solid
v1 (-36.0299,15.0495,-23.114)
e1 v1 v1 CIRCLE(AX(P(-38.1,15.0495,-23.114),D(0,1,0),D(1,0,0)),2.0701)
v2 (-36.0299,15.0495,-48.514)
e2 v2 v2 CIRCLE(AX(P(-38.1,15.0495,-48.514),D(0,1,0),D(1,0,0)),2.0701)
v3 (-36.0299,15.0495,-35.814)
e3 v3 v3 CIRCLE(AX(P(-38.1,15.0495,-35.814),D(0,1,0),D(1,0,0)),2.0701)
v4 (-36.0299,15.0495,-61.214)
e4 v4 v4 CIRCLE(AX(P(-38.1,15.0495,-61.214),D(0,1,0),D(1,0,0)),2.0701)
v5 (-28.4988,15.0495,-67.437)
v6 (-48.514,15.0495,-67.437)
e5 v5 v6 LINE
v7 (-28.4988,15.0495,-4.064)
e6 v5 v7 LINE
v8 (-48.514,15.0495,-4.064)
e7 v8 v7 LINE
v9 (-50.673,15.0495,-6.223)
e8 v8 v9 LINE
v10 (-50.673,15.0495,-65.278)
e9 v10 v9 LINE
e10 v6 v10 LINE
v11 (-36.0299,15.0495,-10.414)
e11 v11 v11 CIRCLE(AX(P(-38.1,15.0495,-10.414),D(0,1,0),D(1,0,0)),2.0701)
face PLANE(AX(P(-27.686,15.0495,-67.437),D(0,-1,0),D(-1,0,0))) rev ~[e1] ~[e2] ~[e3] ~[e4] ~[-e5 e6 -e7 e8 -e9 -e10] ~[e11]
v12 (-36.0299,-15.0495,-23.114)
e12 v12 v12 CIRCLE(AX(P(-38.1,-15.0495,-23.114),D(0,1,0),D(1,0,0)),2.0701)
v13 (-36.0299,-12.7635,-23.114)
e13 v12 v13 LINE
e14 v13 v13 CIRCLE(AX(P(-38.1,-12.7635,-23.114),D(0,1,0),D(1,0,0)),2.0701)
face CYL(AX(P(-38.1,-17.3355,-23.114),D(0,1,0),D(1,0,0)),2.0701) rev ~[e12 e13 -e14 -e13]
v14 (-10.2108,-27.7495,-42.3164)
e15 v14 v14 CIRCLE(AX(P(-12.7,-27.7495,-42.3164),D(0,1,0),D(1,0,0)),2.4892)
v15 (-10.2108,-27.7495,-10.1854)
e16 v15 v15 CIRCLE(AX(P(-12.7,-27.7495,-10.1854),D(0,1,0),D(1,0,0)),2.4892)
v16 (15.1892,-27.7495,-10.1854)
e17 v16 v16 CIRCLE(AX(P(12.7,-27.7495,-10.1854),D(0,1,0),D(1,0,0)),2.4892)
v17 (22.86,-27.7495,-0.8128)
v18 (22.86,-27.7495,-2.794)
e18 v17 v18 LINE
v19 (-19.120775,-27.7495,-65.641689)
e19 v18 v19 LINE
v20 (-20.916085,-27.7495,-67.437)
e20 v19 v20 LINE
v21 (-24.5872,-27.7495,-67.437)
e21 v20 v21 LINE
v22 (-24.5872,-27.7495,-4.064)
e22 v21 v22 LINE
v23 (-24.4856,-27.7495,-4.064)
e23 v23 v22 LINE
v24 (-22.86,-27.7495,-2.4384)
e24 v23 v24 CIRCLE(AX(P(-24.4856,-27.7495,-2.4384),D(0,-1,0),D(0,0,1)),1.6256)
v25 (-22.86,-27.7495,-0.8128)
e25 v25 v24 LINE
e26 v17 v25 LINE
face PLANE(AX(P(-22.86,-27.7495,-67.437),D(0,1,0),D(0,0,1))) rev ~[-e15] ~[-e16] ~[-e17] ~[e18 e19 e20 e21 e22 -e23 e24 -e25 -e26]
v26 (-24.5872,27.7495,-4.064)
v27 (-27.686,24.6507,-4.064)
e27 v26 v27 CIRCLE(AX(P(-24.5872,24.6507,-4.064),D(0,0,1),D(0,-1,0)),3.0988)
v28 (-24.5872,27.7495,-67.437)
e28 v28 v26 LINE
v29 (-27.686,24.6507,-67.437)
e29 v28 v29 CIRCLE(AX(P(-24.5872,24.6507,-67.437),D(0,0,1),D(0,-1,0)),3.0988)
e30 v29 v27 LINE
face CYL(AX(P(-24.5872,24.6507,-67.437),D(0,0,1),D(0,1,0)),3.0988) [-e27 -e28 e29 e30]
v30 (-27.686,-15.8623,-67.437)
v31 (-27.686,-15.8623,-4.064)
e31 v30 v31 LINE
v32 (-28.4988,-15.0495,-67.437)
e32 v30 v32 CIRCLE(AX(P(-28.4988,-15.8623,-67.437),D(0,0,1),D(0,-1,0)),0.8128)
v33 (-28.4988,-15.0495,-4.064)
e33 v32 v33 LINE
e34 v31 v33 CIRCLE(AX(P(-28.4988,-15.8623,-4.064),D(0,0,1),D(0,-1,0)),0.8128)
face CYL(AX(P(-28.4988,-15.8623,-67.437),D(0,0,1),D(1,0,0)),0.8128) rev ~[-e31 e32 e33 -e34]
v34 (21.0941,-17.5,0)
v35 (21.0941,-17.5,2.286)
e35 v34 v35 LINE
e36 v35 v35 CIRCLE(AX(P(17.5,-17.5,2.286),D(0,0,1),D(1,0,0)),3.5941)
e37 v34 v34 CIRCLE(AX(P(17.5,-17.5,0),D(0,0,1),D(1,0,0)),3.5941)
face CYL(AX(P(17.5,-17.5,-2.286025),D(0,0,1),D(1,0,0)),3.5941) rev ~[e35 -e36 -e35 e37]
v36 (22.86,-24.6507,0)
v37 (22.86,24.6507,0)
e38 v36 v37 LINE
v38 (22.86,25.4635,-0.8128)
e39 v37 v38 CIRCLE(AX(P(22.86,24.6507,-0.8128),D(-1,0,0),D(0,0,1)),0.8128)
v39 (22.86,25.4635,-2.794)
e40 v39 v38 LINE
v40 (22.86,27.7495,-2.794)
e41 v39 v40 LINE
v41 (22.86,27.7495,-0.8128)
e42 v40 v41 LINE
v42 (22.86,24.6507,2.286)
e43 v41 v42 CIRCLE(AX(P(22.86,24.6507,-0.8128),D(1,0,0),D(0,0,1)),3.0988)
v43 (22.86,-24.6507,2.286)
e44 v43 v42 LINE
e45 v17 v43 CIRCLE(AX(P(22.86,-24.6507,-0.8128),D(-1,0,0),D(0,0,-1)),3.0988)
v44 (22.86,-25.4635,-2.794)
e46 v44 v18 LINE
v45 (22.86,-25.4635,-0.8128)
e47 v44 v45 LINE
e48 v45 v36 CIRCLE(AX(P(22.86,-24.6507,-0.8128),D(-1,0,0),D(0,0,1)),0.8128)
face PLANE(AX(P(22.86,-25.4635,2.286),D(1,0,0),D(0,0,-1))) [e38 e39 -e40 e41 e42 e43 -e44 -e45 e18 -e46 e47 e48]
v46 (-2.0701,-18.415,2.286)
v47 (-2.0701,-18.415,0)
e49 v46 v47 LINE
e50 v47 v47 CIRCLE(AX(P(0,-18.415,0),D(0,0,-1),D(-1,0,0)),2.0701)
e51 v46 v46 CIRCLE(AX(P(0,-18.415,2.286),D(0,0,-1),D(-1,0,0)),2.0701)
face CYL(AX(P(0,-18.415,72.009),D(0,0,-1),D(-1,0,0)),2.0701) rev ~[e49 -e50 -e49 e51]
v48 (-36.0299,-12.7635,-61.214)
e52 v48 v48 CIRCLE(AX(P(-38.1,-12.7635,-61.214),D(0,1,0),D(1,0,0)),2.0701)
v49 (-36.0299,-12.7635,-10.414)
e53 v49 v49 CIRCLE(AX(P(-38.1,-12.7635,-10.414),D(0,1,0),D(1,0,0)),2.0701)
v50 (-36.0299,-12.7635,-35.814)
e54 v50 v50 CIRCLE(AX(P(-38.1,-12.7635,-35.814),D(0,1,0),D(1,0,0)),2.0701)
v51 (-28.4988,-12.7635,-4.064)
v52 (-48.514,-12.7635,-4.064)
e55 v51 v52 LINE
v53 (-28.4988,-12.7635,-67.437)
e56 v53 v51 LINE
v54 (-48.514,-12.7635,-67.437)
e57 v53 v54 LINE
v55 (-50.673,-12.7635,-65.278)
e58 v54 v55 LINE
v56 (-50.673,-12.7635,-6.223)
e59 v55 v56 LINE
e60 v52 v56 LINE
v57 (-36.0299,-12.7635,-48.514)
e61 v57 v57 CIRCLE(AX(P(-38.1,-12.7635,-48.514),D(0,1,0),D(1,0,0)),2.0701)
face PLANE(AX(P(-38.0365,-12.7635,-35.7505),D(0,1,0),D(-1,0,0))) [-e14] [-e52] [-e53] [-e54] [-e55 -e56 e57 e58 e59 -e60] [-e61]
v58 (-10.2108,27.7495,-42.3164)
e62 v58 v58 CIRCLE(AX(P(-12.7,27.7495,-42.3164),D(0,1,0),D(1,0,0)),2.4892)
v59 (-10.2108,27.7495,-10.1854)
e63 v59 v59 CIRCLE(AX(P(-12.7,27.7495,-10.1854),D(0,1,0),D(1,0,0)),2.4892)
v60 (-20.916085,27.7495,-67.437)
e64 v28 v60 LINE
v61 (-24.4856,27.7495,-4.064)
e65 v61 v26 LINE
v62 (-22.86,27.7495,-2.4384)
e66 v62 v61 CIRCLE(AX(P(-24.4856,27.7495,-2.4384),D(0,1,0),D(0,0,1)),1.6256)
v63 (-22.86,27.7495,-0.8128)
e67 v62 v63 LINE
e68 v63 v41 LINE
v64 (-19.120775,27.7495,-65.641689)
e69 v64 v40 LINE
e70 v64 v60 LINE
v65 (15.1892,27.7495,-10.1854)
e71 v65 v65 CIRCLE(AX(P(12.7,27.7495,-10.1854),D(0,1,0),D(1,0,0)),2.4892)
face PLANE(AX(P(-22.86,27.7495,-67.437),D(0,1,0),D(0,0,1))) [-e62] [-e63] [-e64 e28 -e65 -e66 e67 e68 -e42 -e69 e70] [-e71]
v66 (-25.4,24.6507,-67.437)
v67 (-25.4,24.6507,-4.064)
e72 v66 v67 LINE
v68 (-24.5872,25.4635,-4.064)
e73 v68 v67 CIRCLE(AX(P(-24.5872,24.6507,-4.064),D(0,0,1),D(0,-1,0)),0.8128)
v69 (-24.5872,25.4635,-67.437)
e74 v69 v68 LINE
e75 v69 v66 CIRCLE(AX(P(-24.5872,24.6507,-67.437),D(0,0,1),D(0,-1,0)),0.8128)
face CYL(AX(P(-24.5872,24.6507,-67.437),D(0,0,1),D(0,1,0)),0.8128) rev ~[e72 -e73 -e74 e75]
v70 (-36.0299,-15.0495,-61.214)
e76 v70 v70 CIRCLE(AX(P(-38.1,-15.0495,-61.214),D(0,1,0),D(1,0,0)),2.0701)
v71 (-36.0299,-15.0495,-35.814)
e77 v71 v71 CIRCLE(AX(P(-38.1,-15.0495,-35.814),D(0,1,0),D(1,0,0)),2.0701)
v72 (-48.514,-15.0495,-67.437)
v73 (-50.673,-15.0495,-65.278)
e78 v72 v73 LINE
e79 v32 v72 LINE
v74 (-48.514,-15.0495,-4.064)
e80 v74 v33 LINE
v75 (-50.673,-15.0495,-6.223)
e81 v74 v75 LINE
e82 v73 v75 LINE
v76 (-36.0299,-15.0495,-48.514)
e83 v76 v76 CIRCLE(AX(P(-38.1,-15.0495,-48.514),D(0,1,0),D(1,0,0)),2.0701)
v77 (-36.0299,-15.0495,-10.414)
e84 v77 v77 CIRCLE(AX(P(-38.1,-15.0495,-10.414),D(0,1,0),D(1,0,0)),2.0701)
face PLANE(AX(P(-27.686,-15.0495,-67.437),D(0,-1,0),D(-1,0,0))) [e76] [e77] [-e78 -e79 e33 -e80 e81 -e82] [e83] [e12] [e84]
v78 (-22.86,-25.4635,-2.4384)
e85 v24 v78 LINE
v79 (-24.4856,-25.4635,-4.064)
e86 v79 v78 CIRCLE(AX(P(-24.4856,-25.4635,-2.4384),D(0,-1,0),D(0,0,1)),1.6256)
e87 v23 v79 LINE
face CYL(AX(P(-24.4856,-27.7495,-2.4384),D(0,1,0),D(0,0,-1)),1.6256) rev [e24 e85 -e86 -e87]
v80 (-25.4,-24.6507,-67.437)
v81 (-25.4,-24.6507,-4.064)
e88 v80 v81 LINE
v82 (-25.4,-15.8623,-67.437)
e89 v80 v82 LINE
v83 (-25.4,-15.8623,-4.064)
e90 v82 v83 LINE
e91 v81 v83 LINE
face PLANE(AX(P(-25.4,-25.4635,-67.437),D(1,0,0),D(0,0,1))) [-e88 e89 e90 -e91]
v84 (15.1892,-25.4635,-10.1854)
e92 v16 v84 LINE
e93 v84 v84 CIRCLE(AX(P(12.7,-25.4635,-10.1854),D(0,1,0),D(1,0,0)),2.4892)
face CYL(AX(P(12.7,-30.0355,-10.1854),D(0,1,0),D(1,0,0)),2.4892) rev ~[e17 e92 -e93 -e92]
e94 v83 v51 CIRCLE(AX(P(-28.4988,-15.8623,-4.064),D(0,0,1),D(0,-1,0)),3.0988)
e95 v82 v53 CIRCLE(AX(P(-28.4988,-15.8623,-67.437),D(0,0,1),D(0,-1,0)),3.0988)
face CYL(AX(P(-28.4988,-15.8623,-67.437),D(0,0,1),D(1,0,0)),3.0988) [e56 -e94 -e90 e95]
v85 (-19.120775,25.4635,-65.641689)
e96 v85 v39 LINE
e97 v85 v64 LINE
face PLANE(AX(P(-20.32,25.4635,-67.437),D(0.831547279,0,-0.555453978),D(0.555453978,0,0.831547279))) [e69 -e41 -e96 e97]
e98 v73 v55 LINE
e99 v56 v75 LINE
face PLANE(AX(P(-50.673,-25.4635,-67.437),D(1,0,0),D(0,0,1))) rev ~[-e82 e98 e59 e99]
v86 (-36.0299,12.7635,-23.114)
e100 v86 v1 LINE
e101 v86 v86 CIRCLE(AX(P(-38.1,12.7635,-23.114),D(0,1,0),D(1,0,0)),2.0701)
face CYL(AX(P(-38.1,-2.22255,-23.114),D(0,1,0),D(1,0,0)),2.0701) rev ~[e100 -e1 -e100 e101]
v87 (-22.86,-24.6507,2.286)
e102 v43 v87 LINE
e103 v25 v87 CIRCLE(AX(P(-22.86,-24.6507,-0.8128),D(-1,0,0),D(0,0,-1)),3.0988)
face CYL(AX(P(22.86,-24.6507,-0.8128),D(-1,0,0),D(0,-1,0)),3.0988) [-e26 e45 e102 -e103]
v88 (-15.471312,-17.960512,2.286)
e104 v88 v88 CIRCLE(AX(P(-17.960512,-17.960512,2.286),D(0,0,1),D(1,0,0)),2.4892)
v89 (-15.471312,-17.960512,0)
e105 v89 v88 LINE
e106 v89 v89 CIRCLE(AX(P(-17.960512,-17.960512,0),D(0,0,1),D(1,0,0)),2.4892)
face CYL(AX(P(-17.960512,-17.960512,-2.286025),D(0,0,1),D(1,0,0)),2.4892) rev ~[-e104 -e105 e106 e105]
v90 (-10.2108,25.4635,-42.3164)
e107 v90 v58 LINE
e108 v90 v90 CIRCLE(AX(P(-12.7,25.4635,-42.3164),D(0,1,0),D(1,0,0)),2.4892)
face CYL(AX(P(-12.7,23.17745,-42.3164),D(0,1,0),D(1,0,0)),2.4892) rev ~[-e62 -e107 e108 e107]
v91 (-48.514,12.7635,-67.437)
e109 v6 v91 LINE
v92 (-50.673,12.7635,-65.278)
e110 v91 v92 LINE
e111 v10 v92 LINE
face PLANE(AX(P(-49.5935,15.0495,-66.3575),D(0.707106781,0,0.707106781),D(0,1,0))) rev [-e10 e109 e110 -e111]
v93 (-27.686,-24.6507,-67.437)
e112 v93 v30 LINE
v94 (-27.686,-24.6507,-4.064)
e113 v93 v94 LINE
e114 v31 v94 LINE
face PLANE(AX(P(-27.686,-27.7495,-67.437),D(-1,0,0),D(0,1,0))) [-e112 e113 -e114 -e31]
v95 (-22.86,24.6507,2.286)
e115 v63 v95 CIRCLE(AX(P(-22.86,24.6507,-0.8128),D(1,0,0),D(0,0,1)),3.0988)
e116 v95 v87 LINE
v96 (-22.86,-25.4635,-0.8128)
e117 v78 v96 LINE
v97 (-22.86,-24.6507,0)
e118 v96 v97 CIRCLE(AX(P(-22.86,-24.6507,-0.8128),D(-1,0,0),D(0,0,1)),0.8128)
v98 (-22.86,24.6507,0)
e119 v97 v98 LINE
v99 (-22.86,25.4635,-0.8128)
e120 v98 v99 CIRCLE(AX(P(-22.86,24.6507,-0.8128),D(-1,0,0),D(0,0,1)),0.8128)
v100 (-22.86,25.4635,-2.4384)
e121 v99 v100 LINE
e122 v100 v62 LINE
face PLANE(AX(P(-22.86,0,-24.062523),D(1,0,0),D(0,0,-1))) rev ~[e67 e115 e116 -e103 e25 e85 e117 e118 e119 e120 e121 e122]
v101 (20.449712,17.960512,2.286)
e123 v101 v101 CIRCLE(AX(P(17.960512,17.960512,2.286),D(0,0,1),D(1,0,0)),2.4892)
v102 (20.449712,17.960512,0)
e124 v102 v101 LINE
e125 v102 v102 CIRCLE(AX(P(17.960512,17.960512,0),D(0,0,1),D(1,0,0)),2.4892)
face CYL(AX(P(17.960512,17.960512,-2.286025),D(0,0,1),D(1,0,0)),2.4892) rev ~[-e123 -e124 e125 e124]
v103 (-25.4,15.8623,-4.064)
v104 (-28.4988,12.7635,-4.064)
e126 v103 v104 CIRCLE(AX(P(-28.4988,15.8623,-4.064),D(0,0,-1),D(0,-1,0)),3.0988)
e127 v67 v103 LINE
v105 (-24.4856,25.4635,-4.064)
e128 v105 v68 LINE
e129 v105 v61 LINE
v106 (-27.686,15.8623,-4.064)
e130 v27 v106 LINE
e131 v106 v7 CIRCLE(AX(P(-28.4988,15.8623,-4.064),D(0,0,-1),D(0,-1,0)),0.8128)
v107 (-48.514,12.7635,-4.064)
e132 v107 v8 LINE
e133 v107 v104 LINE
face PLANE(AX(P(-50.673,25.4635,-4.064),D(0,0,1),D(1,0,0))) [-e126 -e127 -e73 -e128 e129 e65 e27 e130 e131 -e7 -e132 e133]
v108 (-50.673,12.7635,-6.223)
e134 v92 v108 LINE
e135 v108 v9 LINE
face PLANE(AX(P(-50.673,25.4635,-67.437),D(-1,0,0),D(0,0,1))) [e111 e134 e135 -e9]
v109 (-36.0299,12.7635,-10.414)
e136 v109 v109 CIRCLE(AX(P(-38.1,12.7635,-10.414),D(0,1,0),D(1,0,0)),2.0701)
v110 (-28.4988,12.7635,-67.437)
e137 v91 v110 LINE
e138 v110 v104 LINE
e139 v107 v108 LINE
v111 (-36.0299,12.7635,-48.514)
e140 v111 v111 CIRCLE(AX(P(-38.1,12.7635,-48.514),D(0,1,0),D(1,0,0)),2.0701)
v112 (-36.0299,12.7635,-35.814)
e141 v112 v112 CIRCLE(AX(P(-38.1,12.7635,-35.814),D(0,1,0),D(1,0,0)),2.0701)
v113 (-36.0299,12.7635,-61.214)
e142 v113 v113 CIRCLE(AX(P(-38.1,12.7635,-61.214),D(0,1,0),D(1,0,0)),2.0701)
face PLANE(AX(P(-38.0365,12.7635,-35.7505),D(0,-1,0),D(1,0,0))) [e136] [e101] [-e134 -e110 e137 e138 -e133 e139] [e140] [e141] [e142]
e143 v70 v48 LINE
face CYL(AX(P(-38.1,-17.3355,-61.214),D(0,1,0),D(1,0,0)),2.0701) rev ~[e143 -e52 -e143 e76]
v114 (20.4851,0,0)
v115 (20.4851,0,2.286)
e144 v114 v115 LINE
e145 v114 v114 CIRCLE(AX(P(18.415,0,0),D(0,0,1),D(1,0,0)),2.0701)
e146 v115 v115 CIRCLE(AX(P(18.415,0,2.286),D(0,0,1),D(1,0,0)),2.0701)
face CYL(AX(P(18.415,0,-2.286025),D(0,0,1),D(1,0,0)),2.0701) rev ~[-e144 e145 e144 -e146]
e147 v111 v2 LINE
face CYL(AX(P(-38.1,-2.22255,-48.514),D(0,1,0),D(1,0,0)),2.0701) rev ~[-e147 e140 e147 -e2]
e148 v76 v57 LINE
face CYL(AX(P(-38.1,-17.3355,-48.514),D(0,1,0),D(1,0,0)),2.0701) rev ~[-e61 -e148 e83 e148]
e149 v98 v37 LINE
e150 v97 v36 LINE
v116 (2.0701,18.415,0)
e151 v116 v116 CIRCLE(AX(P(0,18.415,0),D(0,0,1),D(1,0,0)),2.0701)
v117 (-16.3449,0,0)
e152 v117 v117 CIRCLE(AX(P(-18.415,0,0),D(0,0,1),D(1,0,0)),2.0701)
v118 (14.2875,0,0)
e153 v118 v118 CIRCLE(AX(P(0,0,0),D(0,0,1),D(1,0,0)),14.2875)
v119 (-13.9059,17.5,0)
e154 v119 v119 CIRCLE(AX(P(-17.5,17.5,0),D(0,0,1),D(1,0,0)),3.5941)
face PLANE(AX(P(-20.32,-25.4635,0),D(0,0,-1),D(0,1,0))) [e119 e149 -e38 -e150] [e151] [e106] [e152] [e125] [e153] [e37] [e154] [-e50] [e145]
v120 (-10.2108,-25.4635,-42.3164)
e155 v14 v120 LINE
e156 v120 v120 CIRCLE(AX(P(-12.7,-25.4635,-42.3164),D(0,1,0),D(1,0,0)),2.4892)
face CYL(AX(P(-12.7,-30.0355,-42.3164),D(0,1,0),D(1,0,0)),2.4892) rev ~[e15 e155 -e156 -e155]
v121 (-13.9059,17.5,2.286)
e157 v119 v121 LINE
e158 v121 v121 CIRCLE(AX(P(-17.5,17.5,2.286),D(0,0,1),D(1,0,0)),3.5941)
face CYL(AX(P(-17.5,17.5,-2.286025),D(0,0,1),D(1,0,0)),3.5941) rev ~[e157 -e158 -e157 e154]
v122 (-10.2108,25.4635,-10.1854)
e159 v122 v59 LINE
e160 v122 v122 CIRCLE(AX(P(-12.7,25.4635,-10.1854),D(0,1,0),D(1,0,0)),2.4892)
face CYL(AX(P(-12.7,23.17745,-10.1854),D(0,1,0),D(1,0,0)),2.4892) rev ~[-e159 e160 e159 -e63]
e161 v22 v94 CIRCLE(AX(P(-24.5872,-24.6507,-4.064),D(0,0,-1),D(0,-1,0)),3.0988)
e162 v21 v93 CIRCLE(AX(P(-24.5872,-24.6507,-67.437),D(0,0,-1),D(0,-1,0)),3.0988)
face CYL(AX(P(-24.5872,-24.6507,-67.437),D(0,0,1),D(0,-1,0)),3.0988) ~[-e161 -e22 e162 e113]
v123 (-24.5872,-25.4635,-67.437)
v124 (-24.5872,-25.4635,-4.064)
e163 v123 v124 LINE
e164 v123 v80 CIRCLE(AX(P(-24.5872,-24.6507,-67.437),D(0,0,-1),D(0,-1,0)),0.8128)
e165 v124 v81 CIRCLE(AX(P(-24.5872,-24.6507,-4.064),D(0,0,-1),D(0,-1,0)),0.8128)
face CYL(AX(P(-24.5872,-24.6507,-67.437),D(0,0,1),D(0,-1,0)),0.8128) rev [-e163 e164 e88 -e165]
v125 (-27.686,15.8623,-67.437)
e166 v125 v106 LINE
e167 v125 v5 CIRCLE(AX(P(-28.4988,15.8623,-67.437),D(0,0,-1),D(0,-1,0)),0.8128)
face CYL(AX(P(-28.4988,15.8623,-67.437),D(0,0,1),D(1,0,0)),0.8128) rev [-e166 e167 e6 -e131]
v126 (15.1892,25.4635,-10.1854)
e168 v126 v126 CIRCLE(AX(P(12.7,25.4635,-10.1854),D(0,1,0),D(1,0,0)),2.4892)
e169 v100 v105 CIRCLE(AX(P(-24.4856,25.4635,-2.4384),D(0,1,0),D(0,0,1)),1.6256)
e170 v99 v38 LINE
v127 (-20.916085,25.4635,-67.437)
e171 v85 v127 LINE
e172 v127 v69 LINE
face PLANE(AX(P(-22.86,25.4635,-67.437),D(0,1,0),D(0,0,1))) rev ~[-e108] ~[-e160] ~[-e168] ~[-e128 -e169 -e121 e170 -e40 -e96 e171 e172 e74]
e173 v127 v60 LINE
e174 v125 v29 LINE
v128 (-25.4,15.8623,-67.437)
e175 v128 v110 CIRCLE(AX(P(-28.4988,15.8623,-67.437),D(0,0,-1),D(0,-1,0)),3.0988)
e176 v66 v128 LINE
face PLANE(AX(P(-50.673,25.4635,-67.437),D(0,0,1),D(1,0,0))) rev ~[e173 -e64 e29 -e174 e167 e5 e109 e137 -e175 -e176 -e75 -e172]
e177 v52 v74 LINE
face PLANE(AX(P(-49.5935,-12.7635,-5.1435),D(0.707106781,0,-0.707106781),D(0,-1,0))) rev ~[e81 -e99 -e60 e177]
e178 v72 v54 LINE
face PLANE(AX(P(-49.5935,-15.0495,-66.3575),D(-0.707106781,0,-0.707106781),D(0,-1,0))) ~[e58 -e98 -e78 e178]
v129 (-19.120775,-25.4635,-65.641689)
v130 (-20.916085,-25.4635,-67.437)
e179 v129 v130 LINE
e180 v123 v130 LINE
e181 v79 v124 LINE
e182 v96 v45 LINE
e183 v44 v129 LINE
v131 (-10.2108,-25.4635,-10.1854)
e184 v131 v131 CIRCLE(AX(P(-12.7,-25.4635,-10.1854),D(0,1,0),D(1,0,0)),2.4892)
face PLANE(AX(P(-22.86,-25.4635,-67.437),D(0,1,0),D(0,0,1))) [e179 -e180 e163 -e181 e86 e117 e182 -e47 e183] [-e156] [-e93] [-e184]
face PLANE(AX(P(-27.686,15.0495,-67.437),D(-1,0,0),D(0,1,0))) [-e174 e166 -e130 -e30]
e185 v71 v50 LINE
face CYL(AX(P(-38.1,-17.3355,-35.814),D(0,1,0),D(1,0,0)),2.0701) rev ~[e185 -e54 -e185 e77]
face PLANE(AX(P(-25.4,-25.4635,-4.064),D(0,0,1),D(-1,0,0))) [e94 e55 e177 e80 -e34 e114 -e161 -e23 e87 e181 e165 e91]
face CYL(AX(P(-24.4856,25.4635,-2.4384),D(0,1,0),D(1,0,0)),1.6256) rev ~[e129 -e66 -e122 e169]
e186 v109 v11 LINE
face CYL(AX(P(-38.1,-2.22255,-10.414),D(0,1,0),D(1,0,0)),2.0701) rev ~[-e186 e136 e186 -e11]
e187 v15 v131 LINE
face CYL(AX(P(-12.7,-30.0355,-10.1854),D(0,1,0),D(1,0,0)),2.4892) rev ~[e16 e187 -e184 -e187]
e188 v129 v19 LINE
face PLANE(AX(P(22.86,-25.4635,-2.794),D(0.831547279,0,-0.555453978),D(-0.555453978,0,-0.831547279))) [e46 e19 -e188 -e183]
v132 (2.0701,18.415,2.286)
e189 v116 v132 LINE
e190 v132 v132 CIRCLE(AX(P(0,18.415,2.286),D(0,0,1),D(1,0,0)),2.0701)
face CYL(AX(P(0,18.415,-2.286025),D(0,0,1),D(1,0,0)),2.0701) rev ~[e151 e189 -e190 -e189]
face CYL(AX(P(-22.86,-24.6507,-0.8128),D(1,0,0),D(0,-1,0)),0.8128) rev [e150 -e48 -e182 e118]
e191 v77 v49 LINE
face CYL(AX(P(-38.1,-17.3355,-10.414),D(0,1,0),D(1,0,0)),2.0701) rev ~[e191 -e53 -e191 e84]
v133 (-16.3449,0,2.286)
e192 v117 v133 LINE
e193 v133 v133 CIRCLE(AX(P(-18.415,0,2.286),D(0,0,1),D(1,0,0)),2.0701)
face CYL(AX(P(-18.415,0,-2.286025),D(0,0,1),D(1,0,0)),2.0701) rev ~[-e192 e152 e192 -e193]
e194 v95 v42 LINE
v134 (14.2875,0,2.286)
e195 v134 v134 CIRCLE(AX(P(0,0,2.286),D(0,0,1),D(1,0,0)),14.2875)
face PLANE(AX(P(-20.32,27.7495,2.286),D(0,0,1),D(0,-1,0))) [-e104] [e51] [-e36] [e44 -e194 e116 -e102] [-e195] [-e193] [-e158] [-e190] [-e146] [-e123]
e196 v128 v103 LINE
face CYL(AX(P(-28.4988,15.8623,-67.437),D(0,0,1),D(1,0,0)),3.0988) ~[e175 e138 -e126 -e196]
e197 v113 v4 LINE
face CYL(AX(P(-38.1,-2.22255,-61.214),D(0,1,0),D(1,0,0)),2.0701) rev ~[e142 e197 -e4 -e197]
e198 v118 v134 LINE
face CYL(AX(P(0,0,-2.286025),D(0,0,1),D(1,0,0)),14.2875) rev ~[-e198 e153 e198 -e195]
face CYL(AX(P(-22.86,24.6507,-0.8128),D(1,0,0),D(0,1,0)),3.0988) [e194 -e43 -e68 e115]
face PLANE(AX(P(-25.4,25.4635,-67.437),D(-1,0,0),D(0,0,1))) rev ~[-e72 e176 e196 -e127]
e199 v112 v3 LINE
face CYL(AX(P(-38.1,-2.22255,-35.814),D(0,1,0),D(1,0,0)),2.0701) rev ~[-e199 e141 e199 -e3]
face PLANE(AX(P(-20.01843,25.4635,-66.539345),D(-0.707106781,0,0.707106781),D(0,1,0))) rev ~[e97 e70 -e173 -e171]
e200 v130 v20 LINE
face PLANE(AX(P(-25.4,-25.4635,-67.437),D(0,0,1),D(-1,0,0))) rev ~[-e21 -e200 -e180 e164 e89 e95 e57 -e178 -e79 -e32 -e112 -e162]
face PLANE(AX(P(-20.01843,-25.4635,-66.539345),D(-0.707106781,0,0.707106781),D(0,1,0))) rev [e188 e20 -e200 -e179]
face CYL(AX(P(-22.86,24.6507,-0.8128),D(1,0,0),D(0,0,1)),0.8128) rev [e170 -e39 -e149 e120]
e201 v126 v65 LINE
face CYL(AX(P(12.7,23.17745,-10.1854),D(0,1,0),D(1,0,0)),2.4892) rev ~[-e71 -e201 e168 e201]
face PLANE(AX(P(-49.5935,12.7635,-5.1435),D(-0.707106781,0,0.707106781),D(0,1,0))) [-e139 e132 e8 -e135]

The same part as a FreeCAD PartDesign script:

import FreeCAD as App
import Part
import Sketcher

V = App.Vector
Q = App.Units.Quantity


def edges_at(feature, points):
    """Names of the edges that pass closest to the given points."""
    edges = feature.Shape.Edges
    near = lambda p: min(range(len(edges)), key=lambda i: edges[i].distToShape(Part.Vertex(*p))[0])
    return sorted({f"Edge{near(p) + 1}" for p in points})


def add_polygon(sketch, points):
    """Adds a closed chain of lines whose ends are joined by coincident constraints."""
    first, n = sketch.GeometryCount, len(points)
    for a, b in zip(points, points[1:] + points[:1]):
        sketch.addGeometry(Part.LineSegment(App.Vector(*a, 0), App.Vector(*b, 0)), False)
    for i in range(n):
        sketch.addConstraint(Sketcher.Constraint("Coincident", first + i, 2, first + (i + 1) % n, 1))

doc = App.newDocument("Part")
body = doc.addObject("PartDesign::Body", "Body")

# Sketch on XY plane
sketch1 = doc.addObject("Sketcher::SketchObject", "Sketch")
body.addObject(sketch1)
sketch1.AttachmentSupport = (doc.XY_Plane, [""])
sketch1.MapMode = "FlatFace"
sketch1.AttachmentOffset = App.Placement(V(0, 0, 0.09 * 25.4), App.Rotation())
add_polygon(sketch1, [(-20, 25), (-20, -25), (23, -25), (23, 25)])  # lines 0-3
sketch1.addConstraint(Sketcher.Constraint("Vertical", 0))
sketch1.addConstraint(Sketcher.Constraint("Horizontal", 1))
sketch1.addConstraint(Sketcher.Constraint("Vertical", 2))
sketch1.addConstraint(Sketcher.Constraint("Horizontal", 3))
sketch1.addConstraint(Sketcher.Constraint("DistanceX", 1, 1, 1, 2, Q("1.7 in")))
sketch1.addConstraint(Sketcher.Constraint("DistanceX", 0, 2, -1, 1, Q("0.8 in")))
sketch1.addConstraint(Sketcher.Constraint("DistanceY", 0, 2, 0, 1, Q("2.005 in")))
sketch1.addConstraint(Sketcher.Constraint("DistanceY", 0, 2, -1, 1, Q("1.0025 in")))
pad1 = doc.addObject("PartDesign::Pad", "Pad")
body.addObject(pad1)
pad1.Profile = sketch1
pad1.Length = Q("0.2 in")
pad1.Reversed = True

# Sketch on XZ plane
sketch2 = doc.addObject("Sketcher::SketchObject", "Sketch001")
body.addObject(sketch2)
sketch2.AttachmentSupport = (doc.XZ_Plane, [""])
sketch2.MapMode = "FlatFace"
sketch2.AttachmentOffset = App.Placement(V(0, 0, -1.0025 * 25.4), App.Rotation())
add_polygon(sketch2, [(-20, -67), (-20, 2), (23, 2), (23, -3)])  # lines 0-3
sketch2.addConstraint(Sketcher.Constraint("Vertical", 0))
sketch2.addConstraint(Sketcher.Constraint("Horizontal", 1))
sketch2.addConstraint(Sketcher.Constraint("Vertical", 2))
sketch2.addConstraint(Sketcher.Constraint("DistanceX", 1, 1, 1, 2, Q("1.7 in")))
sketch2.addConstraint(Sketcher.Constraint("DistanceY", 2, 2, 2, 1, Q("0.2 in")))
sketch2.addConstraint(Sketcher.Constraint("DistanceX", 0, 2, -1, 1, Q("0.8 in")))
sketch2.addConstraint(Sketcher.Constraint("DistanceY", 0, 1, 0, 2, Q("2.745 in")))
sketch2.addConstraint(Sketcher.Constraint("DistanceY", -1, 1, 0, 2, Q("0.09 in")))
pad2 = doc.addObject("PartDesign::Pad", "Pad001")
body.addObject(pad2)
pad2.Profile = sketch2
pad2.Length = Q("0.09 in")
pad2.Reversed = True

# Sketch on XZ plane
sketch3 = doc.addObject("Sketcher::SketchObject", "Sketch002")
body.addObject(sketch3)
sketch3.AttachmentSupport = (doc.XZ_Plane, [""])
sketch3.MapMode = "FlatFace"
sketch3.AttachmentOffset = App.Placement(V(0, 0, 1.0025 * 25.4), App.Rotation())
add_polygon(sketch3, [(-20, 2), (-20, -67), (23, -3), (23, 2)])  # lines 0-3
sketch3.addConstraint(Sketcher.Constraint("Vertical", 0))
sketch3.addConstraint(Sketcher.Constraint("Vertical", 2))
sketch3.addConstraint(Sketcher.Constraint("Horizontal", 3))
sketch3.addConstraint(Sketcher.Constraint("DistanceX", 3, 2, 3, 1, Q("1.7 in")))
sketch3.addConstraint(Sketcher.Constraint("DistanceY", 2, 1, 2, 2, Q("0.2 in")))
sketch3.addConstraint(Sketcher.Constraint("DistanceX", 0, 2, -1, 1, Q("0.8 in")))
sketch3.addConstraint(Sketcher.Constraint("DistanceY", 0, 2, 0, 1, Q("2.745 in")))
sketch3.addConstraint(Sketcher.Constraint("DistanceY", 1, 2, -1, 1, Q("0.11 in")))
pad3 = doc.addObject("PartDesign::Pad", "Pad002")
body.addObject(pad3)
pad3.Profile = sketch3
pad3.Length = Q("0.09 in")

# Sketch on XY plane
sketch4 = doc.addObject("Sketcher::SketchObject", "Sketch003")
body.addObject(sketch4)
sketch4.AttachmentSupport = (doc.XY_Plane, [""])
sketch4.MapMode = "FlatFace"
sketch4.AttachmentOffset = App.Placement(V(0, 0, -0.11 * 25.4), App.Rotation())
add_polygon(sketch4, [(23, 25), (23, -25), (-20, -25), (-20, 25)])  # lines 0-3
sketch4.addConstraint(Sketcher.Constraint("Vertical", 0))
sketch4.addConstraint(Sketcher.Constraint("Horizontal", 1))
sketch4.addConstraint(Sketcher.Constraint("Vertical", 2))
sketch4.addConstraint(Sketcher.Constraint("Horizontal", 3))
sketch4.addConstraint(Sketcher.Constraint("DistanceX", 1, 2, 1, 1, Q("1.7 in")))
sketch4.addConstraint(Sketcher.Constraint("DistanceX", -1, 1, 0, 2, Q("0.9 in")))
sketch4.addConstraint(Sketcher.Constraint("DistanceY", 0, 2, 0, 1, Q("2.005 in")))
sketch4.addConstraint(Sketcher.Constraint("DistanceY", 0, 2, -1, 1, Q("1.0025 in")))
pocket1 = doc.addObject("PartDesign::Pocket", "Pocket")
body.addObject(pocket1)
pocket1.Profile = sketch4
pocket1.Length = Q("0.11 in")
pocket1.Reversed = True

# Sketch on YZ plane
sketch5 = doc.addObject("Sketcher::SketchObject", "Sketch004")
body.addObject(sketch5)
sketch5.AttachmentSupport = (doc.YZ_Plane, [""])
sketch5.MapMode = "FlatFace"
sketch5.AttachmentOffset = App.Placement(V(0, 0, -0.8 * 25.4), App.Rotation())
add_polygon(sketch5, [(-25.5, 0), (-25.5, -67.4), (-27.7, -67.4), (-27.7, 2.3), (27.7, 2.3), (27.7, -67.4), (25.5, -67.4), (25.5, 0)])  # lines 0-7
sketch5.addConstraint(Sketcher.Constraint("Vertical", 0))
sketch5.addConstraint(Sketcher.Constraint("Horizontal", 1))
sketch5.addConstraint(Sketcher.Constraint("Vertical", 2))
sketch5.addConstraint(Sketcher.Constraint("Horizontal", 3))
sketch5.addConstraint(Sketcher.Constraint("Vertical", 4))
sketch5.addConstraint(Sketcher.Constraint("Horizontal", 5))
sketch5.addConstraint(Sketcher.Constraint("Vertical", 6))
sketch5.addConstraint(Sketcher.Constraint("Horizontal", 7))
sketch5.addConstraint(Sketcher.Constraint("Symmetric", 6, 2, 7, 2, -1, 1))
sketch5.addConstraint(Sketcher.Constraint("Symmetric", 1, 2, 4, 2, -2))
sketch5.addConstraint(Sketcher.Constraint("DistanceX", 1, 2, 1, 1, Q("0.09 in")))
sketch5.addConstraint(Sketcher.Constraint("DistanceX", 3, 1, 3, 2, Q("2.185 in")))
sketch5.addConstraint(Sketcher.Constraint("DistanceY", 0, 2, 0, 1, Q("2.655 in")))
sketch5.addConstraint(Sketcher.Constraint("DistanceY", 2, 1, 2, 2, Q("2.745 in")))
pad4 = doc.addObject("PartDesign::Pad", "Pad003")
body.addObject(pad4)
pad4.Profile = sketch5
pad4.Length = Q("0.1 in")
pad4.Reversed = True

# Sketch on YZ plane
sketch6 = doc.addObject("Sketcher::SketchObject", "Sketch005")
body.addObject(sketch6)
sketch6.AttachmentSupport = (doc.YZ_Plane, [""])
sketch6.MapMode = "FlatFace"
sketch6.AttachmentOffset = App.Placement(V(0, 0, -0.9 * 25.4), App.Rotation())
add_polygon(sketch6, [(27.7, -67.4), (25.5, -67.4), (25.5, -4.1), (27.7, -4.1)])  # lines 0-3
sketch6.addConstraint(Sketcher.Constraint("Horizontal", 0))
sketch6.addConstraint(Sketcher.Constraint("Vertical", 1))
sketch6.addConstraint(Sketcher.Constraint("Horizontal", 2))
sketch6.addConstraint(Sketcher.Constraint("Vertical", 3))
sketch6.addConstraint(Sketcher.Constraint("DistanceX", 0, 2, 0, 1, Q("0.09 in")))
sketch6.addConstraint(Sketcher.Constraint("DistanceY", 1, 1, 1, 2, Q("2.495 in")))
sketch6.addConstraint(Sketcher.Constraint("DistanceY", 1, 2, -1, 1, Q("0.16 in")))
sketch6.addConstraint(Sketcher.Constraint("DistanceX", -1, 1, 0, 2, Q("1.0025 in")))
pad5 = doc.addObject("PartDesign::Pad", "Pad004")
body.addObject(pad5)
pad5.Profile = sketch6
pad5.Length = Q("1.095 in")
pad5.Reversed = True

# Sketch on XZ plane
sketch7 = doc.addObject("Sketcher::SketchObject", "Sketch006")
body.addObject(sketch7)
sketch7.AttachmentSupport = (doc.XZ_Plane, [""])
sketch7.MapMode = "FlatFace"
sketch7.AttachmentOffset = App.Placement(V(0, 0, -1.0025 * 25.4), App.Rotation())
add_polygon(sketch7, [(-51, -4), (-51, -67), (-25, -67), (-25, -4)])  # lines 0-3
sketch7.addConstraint(Sketcher.Constraint("Vertical", 0))
sketch7.addConstraint(Sketcher.Constraint("Horizontal", 1))
sketch7.addConstraint(Sketcher.Constraint("Vertical", 2))
sketch7.addConstraint(Sketcher.Constraint("Horizontal", 3))
sketch7.addConstraint(Sketcher.Constraint("DistanceX", 1, 2, -1, 1, Q("1 in")))
sketch7.addConstraint(Sketcher.Constraint("DistanceX", 1, 1, 1, 2, Q("0.995 in")))
sketch7.addConstraint(Sketcher.Constraint("DistanceY", 0, 2, 0, 1, Q("2.495 in")))
sketch7.addConstraint(Sketcher.Constraint("DistanceY", 2, 2, -1, 1, Q("0.16 in")))
pad6 = doc.addObject("PartDesign::Pad", "Pad005")
body.addObject(pad6)
pad6.Profile = sketch7
pad6.Length = Q("0.5 in")

# Sketch on YZ plane
sketch8 = doc.addObject("Sketcher::SketchObject", "Sketch007")
body.addObject(sketch8)
sketch8.AttachmentSupport = (doc.YZ_Plane, [""])
sketch8.MapMode = "FlatFace"
sketch8.AttachmentOffset = App.Placement(V(0, 0, -0.9 * 25.4), App.Rotation())
add_polygon(sketch8, [(-25.5, -67.4), (-27.7, -67.4), (-27.7, -4.1), (-25.5, -4.1)])  # lines 0-3
sketch8.addConstraint(Sketcher.Constraint("Horizontal", 0))
sketch8.addConstraint(Sketcher.Constraint("Vertical", 1))
sketch8.addConstraint(Sketcher.Constraint("Horizontal", 2))
sketch8.addConstraint(Sketcher.Constraint("Vertical", 3))
sketch8.addConstraint(Sketcher.Constraint("DistanceX", 0, 2, 0, 1, Q("0.09 in")))
sketch8.addConstraint(Sketcher.Constraint("DistanceY", 1, 1, 1, 2, Q("2.495 in")))
sketch8.addConstraint(Sketcher.Constraint("DistanceY", 1, 2, -1, 1, Q("0.16 in")))
sketch8.addConstraint(Sketcher.Constraint("DistanceX", 0, 2, -1, 1, Q("1.0925 in")))
pad7 = doc.addObject("PartDesign::Pad", "Pad006")
body.addObject(pad7)
pad7.Profile = sketch8
pad7.Length = Q("1.095 in")
pad7.Reversed = True

# Sketch on XZ plane
sketch9 = doc.addObject("Sketcher::SketchObject", "Sketch008")
body.addObject(sketch9)
sketch9.AttachmentSupport = (doc.XZ_Plane, [""])
sketch9.MapMode = "FlatFace"
sketch9.AttachmentOffset = App.Placement(V(0, 0, 1.0025 * 25.4), App.Rotation())
add_polygon(sketch9, [(-25, -4), (-25, -67), (-51, -67), (-51, -4)])  # lines 0-3
sketch9.addConstraint(Sketcher.Constraint("Vertical", 0))
sketch9.addConstraint(Sketcher.Constraint("Horizontal", 1))
sketch9.addConstraint(Sketcher.Constraint("Vertical", 2))
sketch9.addConstraint(Sketcher.Constraint("Horizontal", 3))
sketch9.addConstraint(Sketcher.Constraint("DistanceX", 0, 2, -1, 1, Q("1 in")))
sketch9.addConstraint(Sketcher.Constraint("DistanceX", 1, 2, 1, 1, Q("0.995 in")))
sketch9.addConstraint(Sketcher.Constraint("DistanceY", 0, 2, 0, 1, Q("2.495 in")))
sketch9.addConstraint(Sketcher.Constraint("DistanceY", 2, 2, -1, 1, Q("0.16 in")))
pad8 = doc.addObject("PartDesign::Pad", "Pad007")
body.addObject(pad8)
pad8.Profile = sketch9
pad8.Length = Q("0.5 in")
pad8.Reversed = True

# Sketch on XY plane
sketch10 = doc.addObject("Sketcher::SketchObject", "Sketch009")
body.addObject(sketch10)
sketch10.AttachmentSupport = (doc.XY_Plane, [""])
sketch10.MapMode = "FlatFace"
sketch10.AttachmentOffset = App.Placement(V(0, 0, -2.655 * 25.4), App.Rotation())
add_polygon(sketch10, [(-28, 28), (-28, 15), (-51, 15), (-51, 28)])  # lines 0-3
sketch10.addConstraint(Sketcher.Constraint("Vertical", 0))
sketch10.addConstraint(Sketcher.Constraint("Horizontal", 1))
sketch10.addConstraint(Sketcher.Constraint("Vertical", 2))
sketch10.addConstraint(Sketcher.Constraint("Horizontal", 3))
sketch10.addConstraint(Sketcher.Constraint("DistanceY", 0, 2, 0, 1, Q("0.5 in")))
sketch10.addConstraint(Sketcher.Constraint("DistanceX", 1, 2, 1, 1, Q("0.905 in")))
sketch10.addConstraint(Sketcher.Constraint("DistanceX", 0, 2, -1, 1, Q("1.09 in")))
sketch10.addConstraint(Sketcher.Constraint("DistanceY", -1, 1, 0, 2, Q("0.5925 in")))
pocket2 = doc.addObject("PartDesign::Pocket", "Pocket001")
body.addObject(pocket2)
pocket2.Profile = sketch10
pocket2.Type = "ThroughAll"
pocket2.Reversed = True

# Sketch on XY plane
sketch11 = doc.addObject("Sketcher::SketchObject", "Sketch010")
body.addObject(sketch11)
sketch11.AttachmentSupport = (doc.XY_Plane, [""])
sketch11.MapMode = "FlatFace"
sketch11.AttachmentOffset = App.Placement(V(0, 0, -2.655 * 25.4), App.Rotation())
add_polygon(sketch11, [(-28, -15), (-28, -28), (-51, -28), (-51, -15)])  # lines 0-3
sketch11.addConstraint(Sketcher.Constraint("Vertical", 0))
sketch11.addConstraint(Sketcher.Constraint("Horizontal", 1))
sketch11.addConstraint(Sketcher.Constraint("Vertical", 2))
sketch11.addConstraint(Sketcher.Constraint("Horizontal", 3))
sketch11.addConstraint(Sketcher.Constraint("DistanceY", 0, 2, 0, 1, Q("0.5 in")))
sketch11.addConstraint(Sketcher.Constraint("DistanceX", 1, 2, 1, 1, Q("0.905 in")))
sketch11.addConstraint(Sketcher.Constraint("DistanceX", 0, 2, -1, 1, Q("1.09 in")))
sketch11.addConstraint(Sketcher.Constraint("DistanceY", 0, 2, -1, 1, Q("1.0925 in")))
pocket3 = doc.addObject("PartDesign::Pocket", "Pocket002")
body.addObject(pocket3)
pocket3.Profile = sketch11
pocket3.Type = "ThroughAll"
pocket3.Reversed = True

# Sketch on XZ plane
sketch12 = doc.addObject("Sketcher::SketchObject", "Sketch011")
body.addObject(sketch12)
sketch12.AttachmentSupport = (doc.XZ_Plane, [""])
sketch12.MapMode = "FlatFace"
sketch12.AttachmentOffset = App.Placement(V(0, 0, 1.0925 * 25.4), App.Rotation())
sketch12.addGeometry(Part.Circle(V(-12.7, -10.2, 0), V(0, 0, 1), 2.5), False)
sketch12.addGeometry(Part.Circle(V(12.7, -10.2, 0), V(0, 0, 1), 2.5), False)
sketch12.addGeometry(Part.Circle(V(-12.7, -42.3, 0), V(0, 0, 1), 2.5), False)
sketch12.addConstraint(Sketcher.Constraint("Equal", 0, 1))
sketch12.addConstraint(Sketcher.Constraint("Equal", 1, 2))
sketch12.addConstraint(Sketcher.Constraint("Symmetric", 0, 3, 1, 3, -2))
sketch12.addConstraint(Sketcher.Constraint("Vertical", 0, 3, 2, 3))
sketch12.addConstraint(Sketcher.Constraint("Diameter", 0, Q("0.196 in")))
sketch12.addConstraint(Sketcher.Constraint("DistanceX", 0, 3, 1, 3, Q("1 in")))
sketch12.addConstraint(Sketcher.Constraint("DistanceY", 0, 3, -1, 1, Q("0.401 in")))
sketch12.addConstraint(Sketcher.Constraint("DistanceY", 2, 3, -1, 1, Q("1.666 in")))
doc.recompute()
hole = doc.addObject("PartDesign::Hole", "Hole")
body.addObject(hole)
hole.Profile = sketch12
hole.ThreadType = "None"
hole.Diameter = Q("0.196 in")
hole.DepthType = "Dimension"
hole.Depth = Q("0.09 in")
hole.DrillPoint = "Flat"

# Sketch on XY plane
sketch13 = doc.addObject("Sketcher::SketchObject", "Sketch012")
body.addObject(sketch13)
sketch13.AttachmentSupport = (doc.XY_Plane, [""])
sketch13.MapMode = "FlatFace"
sketch13.AttachmentOffset = App.Placement(V(0, 0, 0.09 * 25.4), App.Rotation())
sketch13.addGeometry(Part.Circle(V(0, -18.4, 0), V(0, 0, 1), 2.1), False)
sketch13.addConstraint(Sketcher.Constraint("PointOnObject", 0, 3, -2))
sketch13.addConstraint(Sketcher.Constraint("Diameter", 0, Q("0.163 in")))
sketch13.addConstraint(Sketcher.Constraint("DistanceY", 0, 3, -1, 1, Q("0.725 in")))
doc.recompute()
hole2 = doc.addObject("PartDesign::Hole", "Hole001")
body.addObject(hole2)
hole2.Profile = sketch13
hole2.ThreadType = "None"
hole2.Diameter = Q("0.163 in")
hole2.DepthType = "Dimension"
hole2.Depth = Q("2.745 in")
hole2.DrillPoint = "Flat"

# Sketch on XY plane
sketch14 = doc.addObject("Sketcher::SketchObject", "Sketch013")
body.addObject(sketch14)
sketch14.AttachmentSupport = (doc.XY_Plane, [""])
sketch14.MapMode = "FlatFace"
sketch14.addGeometry(Part.Circle(V(18.4, 0, 0), V(0, 0, 1), 2.1), False)
sketch14.addGeometry(Part.Circle(V(-18.4, 0, 0), V(0, 0, 1), 2.1), False)
sketch14.addGeometry(Part.Circle(V(0, 18.4, 0), V(0, 0, 1), 2.1), False)
sketch14.addConstraint(Sketcher.Constraint("Equal", 0, 1))
sketch14.addConstraint(Sketcher.Constraint("Equal", 1, 2))
sketch14.addConstraint(Sketcher.Constraint("Symmetric", 0, 3, 1, 3, -1, 1))
sketch14.addConstraint(Sketcher.Constraint("PointOnObject", 0, 3, -1))
sketch14.addConstraint(Sketcher.Constraint("PointOnObject", 2, 3, -2))
sketch14.addConstraint(Sketcher.Constraint("Diameter", 0, Q("0.163 in")))
sketch14.addConstraint(Sketcher.Constraint("DistanceX", 1, 3, 0, 3, Q("1.45 in")))
sketch14.addConstraint(Sketcher.Constraint("DistanceY", -1, 1, 2, 3, Q("0.725 in")))
doc.recompute()
hole3 = doc.addObject("PartDesign::Hole", "Hole002")
body.addObject(hole3)
hole3.Profile = sketch14
hole3.ThreadType = "None"
hole3.Diameter = Q("0.163 in")
hole3.DepthType = "Dimension"
hole3.Depth = 2.286025
hole3.DrillPoint = "Flat"
hole3.Reversed = True

# Sketch on XY plane
sketch15 = doc.addObject("Sketcher::SketchObject", "Sketch014")
body.addObject(sketch15)
sketch15.AttachmentSupport = (doc.XY_Plane, [""])
sketch15.MapMode = "FlatFace"
sketch15.addGeometry(Part.Circle(V(0, 0, 0), V(0, 0, 1), 14), False)
sketch15.addConstraint(Sketcher.Constraint("Coincident", 0, 3, -1, 1))
sketch15.addConstraint(Sketcher.Constraint("Diameter", 0, Q("1.125 in")))
doc.recompute()
hole4 = doc.addObject("PartDesign::Hole", "Hole003")
body.addObject(hole4)
hole4.Profile = sketch15
hole4.ThreadType = "None"
hole4.Diameter = Q("1.125 in")
hole4.DepthType = "Dimension"
hole4.Depth = 2.286025
hole4.DrillPoint = "Flat"
hole4.Reversed = True

# Sketch on XY plane
sketch16 = doc.addObject("Sketcher::SketchObject", "Sketch015")
body.addObject(sketch16)
sketch16.AttachmentSupport = (doc.XY_Plane, [""])
sketch16.MapMode = "FlatFace"
sketch16.addGeometry(Part.Circle(V(-17.5, 17.5, 0), V(0, 0, 1), 3.6), False)
sketch16.addGeometry(Part.Circle(V(17.5, -17.5, 0), V(0, 0, 1), 3.6), False)
sketch16.addConstraint(Sketcher.Constraint("Equal", 0, 1))
sketch16.addConstraint(Sketcher.Constraint("Symmetric", 0, 3, 1, 3, -1, 1))
sketch16.addConstraint(Sketcher.Constraint("Diameter", 0, Q("0.283 in")))
sketch16.addConstraint(Sketcher.Constraint("DistanceX", 0, 3, -1, 1, 17.5))
sketch16.addConstraint(Sketcher.Constraint("DistanceY", -1, 1, 0, 3, 17.5))
doc.recompute()
hole5 = doc.addObject("PartDesign::Hole", "Hole004")
body.addObject(hole5)
hole5.Profile = sketch16
hole5.ThreadType = "None"
hole5.Diameter = Q("0.283 in")
hole5.DepthType = "Dimension"
hole5.Depth = 2.286025
hole5.DrillPoint = "Flat"
hole5.Reversed = True

# Sketch on XY plane
sketch17 = doc.addObject("Sketcher::SketchObject", "Sketch016")
body.addObject(sketch17)
sketch17.AttachmentSupport = (doc.XY_Plane, [""])
sketch17.MapMode = "FlatFace"
sketch17.addGeometry(Part.Circle(V(-18, -18, 0), V(0, 0, 1), 2.5), False)
sketch17.addGeometry(Part.Circle(V(18, 18, 0), V(0, 0, 1), 2.5), False)
sketch17.addConstraint(Sketcher.Constraint("Equal", 0, 1))
sketch17.addConstraint(Sketcher.Constraint("Symmetric", 0, 3, 1, 3, -1, 1))
sketch17.addConstraint(Sketcher.Constraint("Diameter", 0, Q("0.196 in")))
sketch17.addConstraint(Sketcher.Constraint("DistanceX", 0, 3, -1, 1, 17.960512))
sketch17.addConstraint(Sketcher.Constraint("DistanceY", 0, 3, -1, 1, 17.960512))
doc.recompute()
hole6 = doc.addObject("PartDesign::Hole", "Hole005")
body.addObject(hole6)
hole6.Profile = sketch17
hole6.ThreadType = "None"
hole6.Diameter = Q("0.196 in")
hole6.DepthType = "Dimension"
hole6.Depth = 2.286025
hole6.DrillPoint = "Flat"
hole6.Reversed = True

# Sketch on XZ plane
sketch18 = doc.addObject("Sketcher::SketchObject", "Sketch017")
body.addObject(sketch18)
sketch18.AttachmentSupport = (doc.XZ_Plane, [""])
sketch18.MapMode = "FlatFace"
sketch18.AttachmentOffset = App.Placement(V(0, 0, 0.5925 * 25.4), App.Rotation())
sketch18.addGeometry(Part.Circle(V(-38.1, -61.2, 0), V(0, 0, 1), 2.1), False)
sketch18.addGeometry(Part.Circle(V(-38.1, -48.5, 0), V(0, 0, 1), 2.1), False)
sketch18.addGeometry(Part.Circle(V(-38.1, -35.8, 0), V(0, 0, 1), 2.1), False)
sketch18.addGeometry(Part.Circle(V(-38.1, -23.1, 0), V(0, 0, 1), 2.1), False)
sketch18.addGeometry(Part.Circle(V(-38.1, -10.4, 0), V(0, 0, 1), 2.1), False)
sketch18.addConstraint(Sketcher.Constraint("Equal", 0, 1))
sketch18.addConstraint(Sketcher.Constraint("Equal", 1, 2))
sketch18.addConstraint(Sketcher.Constraint("Equal", 2, 3))
sketch18.addConstraint(Sketcher.Constraint("Equal", 3, 4))
sketch18.addConstraint(Sketcher.Constraint("Vertical", 0, 3, 1, 3))
sketch18.addConstraint(Sketcher.Constraint("Vertical", 1, 3, 2, 3))
sketch18.addConstraint(Sketcher.Constraint("Vertical", 2, 3, 3, 3))
sketch18.addConstraint(Sketcher.Constraint("Vertical", 3, 3, 4, 3))
sketch18.addConstraint(Sketcher.Constraint("Diameter", 0, Q("0.163 in")))
sketch18.addConstraint(Sketcher.Constraint("DistanceY", 0, 3, 2, 3, Q("1 in")))
sketch18.addConstraint(Sketcher.Constraint("DistanceY", 1, 3, 3, 3, Q("1 in")))
sketch18.addConstraint(Sketcher.Constraint("DistanceY", 2, 3, 4, 3, Q("1 in")))
sketch18.addConstraint(Sketcher.Constraint("DistanceX", 0, 3, -1, 1, Q("1.5 in")))
sketch18.addConstraint(Sketcher.Constraint("DistanceY", 0, 3, 1, 3, Q("0.5 in")))
sketch18.addConstraint(Sketcher.Constraint("DistanceY", 0, 3, -1, 1, Q("2.41 in")))
doc.recompute()
hole7 = doc.addObject("PartDesign::Hole", "Hole006")
body.addObject(hole7)
hole7.Profile = sketch18
hole7.ThreadType = "None"
hole7.Diameter = Q("0.163 in")
hole7.DepthType = "Dimension"
hole7.Depth = Q("0.09 in")
hole7.DrillPoint = "Flat"

# Sketch on XZ plane
sketch19 = doc.addObject("Sketcher::SketchObject", "Sketch018")
body.addObject(sketch19)
sketch19.AttachmentSupport = (doc.XZ_Plane, [""])
sketch19.MapMode = "FlatFace"
sketch19.AttachmentOffset = App.Placement(V(0, 0, -1.0025 * 25.4), App.Rotation())
sketch19.addGeometry(Part.Circle(V(-12.7, -10.2, 0), V(0, 0, 1), 2.5), False)
sketch19.addGeometry(Part.Circle(V(12.7, -10.2, 0), V(0, 0, 1), 2.5), False)
sketch19.addGeometry(Part.Circle(V(-12.7, -42.3, 0), V(0, 0, 1), 2.5), False)
sketch19.addConstraint(Sketcher.Constraint("Equal", 0, 1))
sketch19.addConstraint(Sketcher.Constraint("Equal", 1, 2))
sketch19.addConstraint(Sketcher.Constraint("Symmetric", 0, 3, 1, 3, -2))
sketch19.addConstraint(Sketcher.Constraint("Vertical", 0, 3, 2, 3))
sketch19.addConstraint(Sketcher.Constraint("Diameter", 0, Q("0.196 in")))
sketch19.addConstraint(Sketcher.Constraint("DistanceX", 0, 3, 1, 3, Q("1 in")))
sketch19.addConstraint(Sketcher.Constraint("DistanceY", 0, 3, -1, 1, Q("0.401 in")))
sketch19.addConstraint(Sketcher.Constraint("DistanceY", 2, 3, -1, 1, Q("1.666 in")))
doc.recompute()
hole8 = doc.addObject("PartDesign::Hole", "Hole007")
body.addObject(hole8)
hole8.Profile = sketch19
hole8.ThreadType = "None"
hole8.Diameter = Q("0.196 in")
hole8.DepthType = "Dimension"
hole8.Depth = 2.28605
hole8.DrillPoint = "Flat"

# Sketch on XZ plane
sketch20 = doc.addObject("Sketcher::SketchObject", "Sketch019")
body.addObject(sketch20)
sketch20.AttachmentSupport = (doc.XZ_Plane, [""])
sketch20.MapMode = "FlatFace"
sketch20.AttachmentOffset = App.Placement(V(0, 0, -0.5025 * 25.4), App.Rotation())
sketch20.addGeometry(Part.Circle(V(-38.1, -61.2, 0), V(0, 0, 1), 2.1), False)
sketch20.addGeometry(Part.Circle(V(-38.1, -48.5, 0), V(0, 0, 1), 2.1), False)
sketch20.addGeometry(Part.Circle(V(-38.1, -35.8, 0), V(0, 0, 1), 2.1), False)
sketch20.addGeometry(Part.Circle(V(-38.1, -23.1, 0), V(0, 0, 1), 2.1), False)
sketch20.addGeometry(Part.Circle(V(-38.1, -10.4, 0), V(0, 0, 1), 2.1), False)
sketch20.addConstraint(Sketcher.Constraint("Equal", 0, 1))
sketch20.addConstraint(Sketcher.Constraint("Equal", 1, 2))
sketch20.addConstraint(Sketcher.Constraint("Equal", 2, 3))
sketch20.addConstraint(Sketcher.Constraint("Equal", 3, 4))
sketch20.addConstraint(Sketcher.Constraint("Vertical", 0, 3, 1, 3))
sketch20.addConstraint(Sketcher.Constraint("Vertical", 1, 3, 2, 3))
sketch20.addConstraint(Sketcher.Constraint("Vertical", 2, 3, 3, 3))
sketch20.addConstraint(Sketcher.Constraint("Vertical", 3, 3, 4, 3))
sketch20.addConstraint(Sketcher.Constraint("Diameter", 0, Q("0.163 in")))
sketch20.addConstraint(Sketcher.Constraint("DistanceY", 0, 3, 2, 3, Q("1 in")))
sketch20.addConstraint(Sketcher.Constraint("DistanceY", 1, 3, 3, 3, Q("1 in")))
sketch20.addConstraint(Sketcher.Constraint("DistanceY", 2, 3, 4, 3, Q("1 in")))
sketch20.addConstraint(Sketcher.Constraint("DistanceX", 0, 3, -1, 1, Q("1.5 in")))
sketch20.addConstraint(Sketcher.Constraint("DistanceY", 0, 3, 1, 3, Q("0.5 in")))
sketch20.addConstraint(Sketcher.Constraint("DistanceY", 0, 3, -1, 1, Q("2.41 in")))
doc.recompute()
hole9 = doc.addObject("PartDesign::Hole", "Hole008")
body.addObject(hole9)
hole9.Profile = sketch20
hole9.ThreadType = "None"
hole9.Diameter = Q("0.163 in")
hole9.DepthType = "Dimension"
hole9.Depth = 14.98605
hole9.DrillPoint = "Flat"
doc.recompute()

chamfer = doc.addObject("PartDesign::Chamfer", "Chamfer")
body.addObject(chamfer)
chamfer.Base = (hole9, edges_at(hole9, [(-20.32, 26.607, -67.437)]))
chamfer.ChamferType = "Two distances"
chamfer.Size = Q("0.085 in")
chamfer.Size2 = 0.596085
doc.recompute()

chamfer2 = doc.addObject("PartDesign::Chamfer", "Chamfer001")
body.addObject(chamfer2)
chamfer2.Base = (chamfer, edges_at(chamfer, [
    (-50.673, -13.906, -67.437),
    (-50.673, 13.906, -67.437),
    (-50.673, -13.906, -4.064),
    (-50.673, 13.906, -4.064),
]))
chamfer2.Size = Q("0.085 in")
doc.recompute()

chamfer3 = doc.addObject("PartDesign::Chamfer", "Chamfer002")
body.addObject(chamfer3)
chamfer3.Base = (chamfer2, edges_at(chamfer2, [(-20.32, -26.607, -67.437)]))
chamfer3.ChamferType = "Two distances"
chamfer3.Size = Q("0.085 in")
chamfer3.Size2 = 0.596085
doc.recompute()

fillet = doc.addObject("PartDesign::Fillet", "Fillet")
body.addObject(fillet)
fillet.Base = (chamfer3, edges_at(chamfer3, [
    (0, -25.463, 0),
    (-25.4, 25.463, -35.751),
    (-25.4, -25.463, -35.751),
    (-27.686, -15.05, -35.751),
    (-27.686, 15.05, -35.751),
    (0, 25.463, 0),
]))
fillet.Radius = Q("0.032 in")
doc.recompute()

fillet2 = doc.addObject("PartDesign::Fillet", "Fillet001")
body.addObject(fillet2)
fillet2.Base = (fillet, edges_at(fillet, [(-22.86, -26.607, -4.064), (-22.86, 26.607, -4.064)]))
fillet2.Radius = Q("0.064 in")
doc.recompute()

fillet3 = doc.addObject("PartDesign::Fillet", "Fillet002")
body.addObject(fillet3)
fillet3.Base = (fillet2, edges_at(fillet2, [
    (0, 27.75, 2.286),
    (-27.686, -27.75, -35.751),
    (0, -27.75, 2.286),
    (-25.4, 12.764, -35.751),
    (-25.4, -12.764, -35.751),
    (-27.686, 27.75, -35.751),
]))
fillet3.Radius = Q("0.122 in")

doc.recompute()
